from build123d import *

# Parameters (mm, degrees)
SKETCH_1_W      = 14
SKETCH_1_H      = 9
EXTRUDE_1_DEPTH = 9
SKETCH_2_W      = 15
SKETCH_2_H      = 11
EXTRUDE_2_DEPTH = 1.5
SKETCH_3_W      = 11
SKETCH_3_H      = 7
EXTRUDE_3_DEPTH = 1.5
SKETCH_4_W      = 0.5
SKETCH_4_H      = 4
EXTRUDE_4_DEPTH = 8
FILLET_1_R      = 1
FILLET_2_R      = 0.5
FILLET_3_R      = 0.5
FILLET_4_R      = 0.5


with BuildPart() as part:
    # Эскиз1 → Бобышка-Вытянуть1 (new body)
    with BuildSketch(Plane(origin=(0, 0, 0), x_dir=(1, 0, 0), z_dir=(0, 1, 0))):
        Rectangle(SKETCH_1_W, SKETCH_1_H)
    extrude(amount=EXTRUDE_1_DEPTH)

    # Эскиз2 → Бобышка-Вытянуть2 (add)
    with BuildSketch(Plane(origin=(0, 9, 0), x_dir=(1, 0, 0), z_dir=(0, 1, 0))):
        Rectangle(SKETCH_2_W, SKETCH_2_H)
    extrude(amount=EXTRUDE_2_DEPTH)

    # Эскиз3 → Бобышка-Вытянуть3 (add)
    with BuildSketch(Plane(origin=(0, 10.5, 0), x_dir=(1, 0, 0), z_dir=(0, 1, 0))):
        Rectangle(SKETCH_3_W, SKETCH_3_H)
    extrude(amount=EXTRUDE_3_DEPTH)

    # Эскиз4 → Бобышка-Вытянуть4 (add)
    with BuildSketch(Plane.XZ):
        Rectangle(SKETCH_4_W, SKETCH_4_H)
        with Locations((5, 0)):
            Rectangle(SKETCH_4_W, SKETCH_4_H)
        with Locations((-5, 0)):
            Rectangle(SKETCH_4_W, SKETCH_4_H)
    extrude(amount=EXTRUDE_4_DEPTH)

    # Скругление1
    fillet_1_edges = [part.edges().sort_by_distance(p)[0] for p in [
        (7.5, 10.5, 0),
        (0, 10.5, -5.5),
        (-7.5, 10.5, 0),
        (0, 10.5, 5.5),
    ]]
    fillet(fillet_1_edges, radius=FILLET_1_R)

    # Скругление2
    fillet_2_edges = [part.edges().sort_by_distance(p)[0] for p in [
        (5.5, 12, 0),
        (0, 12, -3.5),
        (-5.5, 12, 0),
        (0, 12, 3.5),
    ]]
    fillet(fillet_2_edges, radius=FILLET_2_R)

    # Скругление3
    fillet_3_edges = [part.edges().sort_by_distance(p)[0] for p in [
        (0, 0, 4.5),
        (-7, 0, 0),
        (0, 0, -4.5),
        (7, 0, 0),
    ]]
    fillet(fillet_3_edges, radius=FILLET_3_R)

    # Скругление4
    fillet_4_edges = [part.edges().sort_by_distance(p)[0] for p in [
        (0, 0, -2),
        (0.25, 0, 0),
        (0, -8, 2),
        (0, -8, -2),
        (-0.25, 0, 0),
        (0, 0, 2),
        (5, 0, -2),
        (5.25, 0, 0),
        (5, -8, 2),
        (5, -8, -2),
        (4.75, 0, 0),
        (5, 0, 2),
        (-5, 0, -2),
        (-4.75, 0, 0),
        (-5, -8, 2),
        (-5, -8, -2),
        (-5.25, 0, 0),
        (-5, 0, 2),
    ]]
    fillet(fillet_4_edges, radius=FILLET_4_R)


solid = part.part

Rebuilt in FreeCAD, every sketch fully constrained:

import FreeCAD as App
import Part
import Sketcher
from FreeCAD import Vector


def edges_at(feature, points):
    """Names of the edges that pass closest to the given points."""
    edges = feature.Shape.Edges
    near = lambda p: min(range(len(edges)), key=lambda i: edges[i].distToShape(Part.Vertex(*p))[0])
    return sorted({f"Edge{near(p) + 1}" for p in points})

doc = App.newDocument("Part")
body = doc.addObject("PartDesign::Body", "Body")

sketch1 = body.newObject("Sketcher::SketchObject", "Sketch")
sketch1.AttachmentSupport = (doc.getObject("XZ_Plane"), [""])
sketch1.MapMode = "FlatFace"
sketch1.addGeometry([
    Part.LineSegment(Vector(-7, -4, 0), Vector(-7, 4, 0)),
    Part.LineSegment(Vector(-7, 4, 0), Vector(7, 4, 0)),
    Part.LineSegment(Vector(7, 4, 0), Vector(7, -4, 0)),
    Part.LineSegment(Vector(7, -4, 0), Vector(-7, -4, 0)),
], False)
sketch1.addConstraint([
    Sketcher.Constraint("Coincident", 0, 2, 1, 1),
    Sketcher.Constraint("Coincident", 1, 2, 2, 1),
    Sketcher.Constraint("Coincident", 2, 2, 3, 1),
    Sketcher.Constraint("Coincident", 3, 2, 0, 1),
    Sketcher.Constraint("Vertical", 0),
    Sketcher.Constraint("Horizontal", 1),
    Sketcher.Constraint("Vertical", 2),
    Sketcher.Constraint("Horizontal", 3),
    Sketcher.Constraint("Symmetric", 0, 2, 2, 2, -1, 1),
    Sketcher.Constraint("DistanceX", 1, 1, 1, 2, 14.0),
    Sketcher.Constraint("DistanceY", 0, 1, 0, 2, 9.0),
])
pad1 = body.newObject("PartDesign::Pad", "Pad")
pad1.Profile = sketch1
pad1.Length = 9
pad1.Reversed = True

sketch2 = body.newObject("Sketcher::SketchObject", "Sketch001")
sketch2.AttachmentSupport = (doc.getObject("XZ_Plane"), [""])
sketch2.MapMode = "FlatFace"
sketch2.AttachmentOffset = App.Placement(Vector(0, 0, -9), App.Rotation())
sketch2.addGeometry([
    Part.LineSegment(Vector(-8, -6, 0), Vector(-8, 6, 0)),
    Part.LineSegment(Vector(-8, 6, 0), Vector(8, 6, 0)),
    Part.LineSegment(Vector(8, 6, 0), Vector(8, -6, 0)),
    Part.LineSegment(Vector(8, -6, 0), Vector(-8, -6, 0)),
], False)
sketch2.addConstraint([
    Sketcher.Constraint("Coincident", 0, 2, 1, 1),
    Sketcher.Constraint("Coincident", 1, 2, 2, 1),
    Sketcher.Constraint("Coincident", 2, 2, 3, 1),
    Sketcher.Constraint("Coincident", 3, 2, 0, 1),
    Sketcher.Constraint("Vertical", 0),
    Sketcher.Constraint("Horizontal", 1),
    Sketcher.Constraint("Vertical", 2),
    Sketcher.Constraint("Horizontal", 3),
    Sketcher.Constraint("Symmetric", 0, 2, 2, 2, -1, 1),
    Sketcher.Constraint("DistanceX", 1, 1, 1, 2, 15.0),
    Sketcher.Constraint("DistanceY", 0, 1, 0, 2, 11.0),
])
pad2 = body.newObject("PartDesign::Pad", "Pad001")
pad2.Profile = sketch2
pad2.Length = 1.5
pad2.Reversed = True

sketch3 = body.newObject("Sketcher::SketchObject", "Sketch002")
sketch3.AttachmentSupport = (doc.getObject("XZ_Plane"), [""])
sketch3.MapMode = "FlatFace"
sketch3.AttachmentOffset = App.Placement(Vector(0, 0, -10.5), App.Rotation())
sketch3.addGeometry([
    Part.LineSegment(Vector(-6, -4, 0), Vector(-6, 4, 0)),
    Part.LineSegment(Vector(-6, 4, 0), Vector(6, 4, 0)),
    Part.LineSegment(Vector(6, 4, 0), Vector(6, -4, 0)),
    Part.LineSegment(Vector(6, -4, 0), Vector(-6, -4, 0)),
], False)
sketch3.addConstraint([
    Sketcher.Constraint("Coincident", 0, 2, 1, 1),
    Sketcher.Constraint("Coincident", 1, 2, 2, 1),
    Sketcher.Constraint("Coincident", 2, 2, 3, 1),
    Sketcher.Constraint("Coincident", 3, 2, 0, 1),
    Sketcher.Constraint("Vertical", 0),
    Sketcher.Constraint("Horizontal", 1),
    Sketcher.Constraint("Vertical", 2),
    Sketcher.Constraint("Horizontal", 3),
    Sketcher.Constraint("Symmetric", 0, 2, 2, 2, -1, 1),
    Sketcher.Constraint("DistanceX", 1, 1, 1, 2, 11.0),
    Sketcher.Constraint("DistanceY", 0, 1, 0, 2, 7.0),
])
pad3 = body.newObject("PartDesign::Pad", "Pad002")
pad3.Profile = sketch3
pad3.Length = 1.5
pad3.Reversed = True

sketch4 = body.newObject("Sketcher::SketchObject", "Sketch003")
sketch4.AttachmentSupport = (doc.getObject("XZ_Plane"), [""])
sketch4.MapMode = "FlatFace"
sketch4.addGeometry([
    Part.LineSegment(Vector(-0.2, 2, 0), Vector(-0.2, -2, 0)),
    Part.LineSegment(Vector(-0.2, -2, 0), Vector(0.2, -2, 0)),
    Part.LineSegment(Vector(0.2, -2, 0), Vector(0.2, 2, 0)),
    Part.LineSegment(Vector(0.2, 2, 0), Vector(-0.2, 2, 0)),
    Part.LineSegment(Vector(4.8, 2, 0), Vector(4.8, -2, 0)),
    Part.LineSegment(Vector(4.8, -2, 0), Vector(5.2, -2, 0)),
    Part.LineSegment(Vector(5.2, -2, 0), Vector(5.2, 2, 0)),
    Part.LineSegment(Vector(5.2, 2, 0), Vector(4.8, 2, 0)),
    Part.LineSegment(Vector(-5.2, 2, 0), Vector(-5.2, -2, 0)),
    Part.LineSegment(Vector(-5.2, -2, 0), Vector(-4.8, -2, 0)),
    Part.LineSegment(Vector(-4.8, -2, 0), Vector(-4.8, 2, 0)),
    Part.LineSegment(Vector(-4.8, 2, 0), Vector(-5.2, 2, 0)),
], False)
sketch4.addConstraint([
    Sketcher.Constraint("Coincident", 0, 2, 1, 1),
    Sketcher.Constraint("Coincident", 1, 2, 2, 1),
    Sketcher.Constraint("Coincident", 2, 2, 3, 1),
    Sketcher.Constraint("Coincident", 3, 2, 0, 1),
    Sketcher.Constraint("Coincident", 4, 2, 5, 1),
    Sketcher.Constraint("Coincident", 5, 2, 6, 1),
    Sketcher.Constraint("Coincident", 6, 2, 7, 1),
    Sketcher.Constraint("Coincident", 7, 2, 4, 1),
    Sketcher.Constraint("Coincident", 8, 2, 9, 1),
    Sketcher.Constraint("Coincident", 9, 2, 10, 1),
    Sketcher.Constraint("Coincident", 10, 2, 11, 1),
    Sketcher.Constraint("Coincident", 11, 2, 8, 1),
    Sketcher.Constraint("Vertical", 0),
    Sketcher.Constraint("Horizontal", 1),
    Sketcher.Constraint("Vertical", 2),
    Sketcher.Constraint("Horizontal", 3),
    Sketcher.Constraint("Vertical", 4),
    Sketcher.Constraint("Horizontal", 5),
    Sketcher.Constraint("Vertical", 6),
    Sketcher.Constraint("Horizontal", 7),
    Sketcher.Constraint("Vertical", 8),
    Sketcher.Constraint("Horizontal", 9),
    Sketcher.Constraint("Vertical", 10),
    Sketcher.Constraint("Horizontal", 11),
    Sketcher.Constraint("Symmetric", 0, 2, 2, 2, -1, 1),
    Sketcher.Constraint("Symmetric", 6, 2, 8, 2, -1, 1),
    Sketcher.Constraint("Symmetric", 4, 2, 10, 2, -1, 1),
    Sketcher.Constraint("Horizontal", 1, 2, 4, 2),
    Sketcher.Constraint("Horizontal", 3, 2, 6, 2),
    Sketcher.Constraint("Equal", 3, 5),
    Sketcher.Constraint("DistanceY", 0, 2, 0, 1, 4.0),
    Sketcher.Constraint("DistanceX", 1, 1, 1, 2, 0.5),
    Sketcher.Constraint("DistanceX", 0, 2, 4, 2, 5.0),
])
pad4 = body.newObject("PartDesign::Pad", "Pad003")
pad4.Profile = sketch4
pad4.Length = 8
doc.recompute()

fillet = body.newObject("PartDesign::Fillet", "Fillet")
fillet.Base = (pad4, edges_at(pad4, [
    (7.5, 10.5, 0),
    (0, 10.5, -5.5),
    (-7.5, 10.5, 0),
    (0, 10.5, 5.5),
]))
fillet.Radius = 1
doc.recompute()

fillet2 = body.newObject("PartDesign::Fillet", "Fillet001")
fillet2.Base = (fillet, edges_at(fillet, [
    (5.5, 12, 0),
    (0, 12, -3.5),
    (-5.5, 12, 0),
    (0, 12, 3.5),
]))
fillet2.Radius = 0.5
doc.recompute()

fillet3 = body.newObject("PartDesign::Fillet", "Fillet002")
fillet3.Base = (fillet2, edges_at(fillet2, [
    (0, 0, 4.5),
    (-7, 0, 0),
    (0, 0, -4.5),
    (7, 0, 0),
]))
fillet3.Radius = 0.5
doc.recompute()

fillet4 = body.newObject("PartDesign::Fillet", "Fillet003")
fillet4.Base = (fillet3, edges_at(fillet3, [
    (0, 0, -2),
    (0.25, 0, 0),
    (0, -8, 2),
    (0, -8, -2),
    (-0.25, 0, 0),
    (0, 0, 2),
    (5, 0, -2),
    (5.25, 0, 0),
    (5, -8, 2),
    (5, -8, -2),
    (4.75, 0, 0),
    (5, 0, 2),
    (-5, 0, -2),
    (-4.75, 0, 0),
    (-5, -8, 2),
    (-5, -8, -2),
    (-5.25, 0, 0),
    (-5, 0, 2),
]))
fillet4.Radius = 0.5

doc.recompute()
